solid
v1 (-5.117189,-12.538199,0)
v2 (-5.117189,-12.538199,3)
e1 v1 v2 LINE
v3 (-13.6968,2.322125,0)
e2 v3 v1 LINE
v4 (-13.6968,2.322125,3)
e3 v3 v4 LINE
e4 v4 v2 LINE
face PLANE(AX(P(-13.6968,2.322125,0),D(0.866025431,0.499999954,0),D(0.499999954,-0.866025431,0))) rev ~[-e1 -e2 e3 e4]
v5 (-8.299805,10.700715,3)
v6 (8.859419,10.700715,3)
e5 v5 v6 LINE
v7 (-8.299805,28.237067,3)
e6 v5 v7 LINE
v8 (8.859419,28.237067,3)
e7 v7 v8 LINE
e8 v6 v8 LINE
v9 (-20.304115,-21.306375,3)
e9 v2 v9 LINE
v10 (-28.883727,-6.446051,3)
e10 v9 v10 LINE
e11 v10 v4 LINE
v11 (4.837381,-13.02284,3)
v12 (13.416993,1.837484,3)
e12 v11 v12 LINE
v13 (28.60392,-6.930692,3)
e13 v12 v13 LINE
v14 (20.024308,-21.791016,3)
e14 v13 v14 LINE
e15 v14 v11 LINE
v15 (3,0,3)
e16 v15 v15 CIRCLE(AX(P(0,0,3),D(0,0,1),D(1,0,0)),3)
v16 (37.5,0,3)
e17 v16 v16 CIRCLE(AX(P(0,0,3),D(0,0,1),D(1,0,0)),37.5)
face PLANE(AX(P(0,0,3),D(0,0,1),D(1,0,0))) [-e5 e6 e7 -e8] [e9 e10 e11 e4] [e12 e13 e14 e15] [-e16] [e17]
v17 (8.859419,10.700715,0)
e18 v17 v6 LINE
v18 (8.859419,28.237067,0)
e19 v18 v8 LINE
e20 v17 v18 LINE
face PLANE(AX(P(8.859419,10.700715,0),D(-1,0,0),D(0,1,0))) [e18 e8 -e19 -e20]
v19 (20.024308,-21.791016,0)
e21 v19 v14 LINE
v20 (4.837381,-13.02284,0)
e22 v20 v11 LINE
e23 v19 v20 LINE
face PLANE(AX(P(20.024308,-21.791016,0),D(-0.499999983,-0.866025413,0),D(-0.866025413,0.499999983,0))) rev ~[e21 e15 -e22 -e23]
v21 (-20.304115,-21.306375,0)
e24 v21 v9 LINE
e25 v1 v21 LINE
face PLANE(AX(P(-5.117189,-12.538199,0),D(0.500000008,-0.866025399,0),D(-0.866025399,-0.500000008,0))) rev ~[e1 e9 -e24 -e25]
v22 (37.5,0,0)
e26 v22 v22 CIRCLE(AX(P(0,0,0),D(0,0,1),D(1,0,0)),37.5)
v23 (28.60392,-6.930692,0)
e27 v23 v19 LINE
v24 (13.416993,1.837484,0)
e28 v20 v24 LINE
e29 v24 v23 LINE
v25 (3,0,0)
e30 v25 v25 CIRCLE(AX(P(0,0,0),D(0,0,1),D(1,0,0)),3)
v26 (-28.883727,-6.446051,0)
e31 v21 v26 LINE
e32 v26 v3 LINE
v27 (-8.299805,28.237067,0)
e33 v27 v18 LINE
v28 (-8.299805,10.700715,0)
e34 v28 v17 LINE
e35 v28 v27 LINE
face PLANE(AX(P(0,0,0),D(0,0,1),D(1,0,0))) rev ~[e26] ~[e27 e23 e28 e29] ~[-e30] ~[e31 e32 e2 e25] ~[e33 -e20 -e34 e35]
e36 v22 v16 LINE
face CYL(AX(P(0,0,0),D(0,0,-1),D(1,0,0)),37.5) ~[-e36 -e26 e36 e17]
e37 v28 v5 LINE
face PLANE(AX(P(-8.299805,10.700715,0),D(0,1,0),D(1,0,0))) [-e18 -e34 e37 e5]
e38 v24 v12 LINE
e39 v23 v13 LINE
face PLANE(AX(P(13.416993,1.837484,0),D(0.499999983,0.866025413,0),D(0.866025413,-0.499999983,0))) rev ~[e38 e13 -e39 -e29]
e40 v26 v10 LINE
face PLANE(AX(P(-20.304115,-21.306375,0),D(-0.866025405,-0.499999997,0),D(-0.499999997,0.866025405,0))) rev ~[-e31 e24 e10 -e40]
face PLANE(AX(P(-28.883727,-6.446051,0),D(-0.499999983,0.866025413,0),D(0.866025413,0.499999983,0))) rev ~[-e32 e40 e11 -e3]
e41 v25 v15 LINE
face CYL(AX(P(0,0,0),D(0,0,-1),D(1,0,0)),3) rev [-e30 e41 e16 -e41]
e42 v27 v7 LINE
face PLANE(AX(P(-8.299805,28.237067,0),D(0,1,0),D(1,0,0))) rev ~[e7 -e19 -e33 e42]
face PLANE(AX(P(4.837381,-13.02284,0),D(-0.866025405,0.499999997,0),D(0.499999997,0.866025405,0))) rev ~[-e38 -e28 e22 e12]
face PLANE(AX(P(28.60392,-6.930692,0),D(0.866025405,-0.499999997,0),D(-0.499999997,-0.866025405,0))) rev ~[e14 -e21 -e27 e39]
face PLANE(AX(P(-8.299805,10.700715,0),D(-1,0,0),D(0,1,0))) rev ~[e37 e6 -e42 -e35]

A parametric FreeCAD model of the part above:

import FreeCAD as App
import Part
import Sketcher
Q = App.Units.Quantity

doc = App.newDocument("Part")
body = doc.addObject("PartDesign::Body", "Body")

# Sketch on XY plane
sketch1 = body.newObject("Sketcher::SketchObject", "Sketch")
sketch1.AttachmentSupport = (doc.getObject("XY_Plane"), [""])
sketch1.MapMode = "FlatFace"
sketch1.addGeometry([
    Part.Circle(App.Vector(0, 0, 0), App.Vector(0, 0, 1), 37.5),  # 0
    Part.LineSegment(App.Vector(-13.7, 2.3, 0), App.Vector(-5.1, -12.5, 0)),  # 1
    Part.LineSegment(App.Vector(-5.1, -12.5, 0), App.Vector(-20.3, -21.3, 0)),  # 2
    Part.LineSegment(App.Vector(-20.3, -21.3, 0), App.Vector(-28.9, -6.4, 0)),  # 3
    Part.LineSegment(App.Vector(-28.9, -6.4, 0), App.Vector(-13.7, 2.3, 0)),  # 4
    Part.LineSegment(App.Vector(4.8, -13, 0), App.Vector(13.4, 1.8, 0)),  # 5
    Part.LineSegment(App.Vector(13.4, 1.8, 0), App.Vector(28.6, -6.9, 0)),  # 6
    Part.LineSegment(App.Vector(28.6, -6.9, 0), App.Vector(20, -21.8, 0)),  # 7
    Part.LineSegment(App.Vector(20, -21.8, 0), App.Vector(4.8, -13, 0)),  # 8
    Part.Circle(App.Vector(0, 0, 0), App.Vector(0, 0, 1), 3),  # 9
    Part.LineSegment(App.Vector(8.9, 10.7, 0), App.Vector(-8.3, 10.7, 0)),  # 10
    Part.LineSegment(App.Vector(-8.3, 10.7, 0), App.Vector(-8.3, 28.2, 0)),  # 11
    Part.LineSegment(App.Vector(-8.3, 28.2, 0), App.Vector(8.9, 28.2, 0)),  # 12
    Part.LineSegment(App.Vector(8.9, 28.2, 0), App.Vector(8.9, 10.7, 0)),  # 13
], False)
sketch1.addConstraint([
    Sketcher.Constraint("Coincident", 1, 2, 2, 1),
    Sketcher.Constraint("Coincident", 2, 2, 3, 1),
    Sketcher.Constraint("Coincident", 3, 2, 4, 1),
    Sketcher.Constraint("Coincident", 4, 2, 1, 1),
    Sketcher.Constraint("Coincident", 5, 2, 6, 1),
    Sketcher.Constraint("Coincident", 6, 2, 7, 1),
    Sketcher.Constraint("Coincident", 7, 2, 8, 1),
    Sketcher.Constraint("Coincident", 8, 2, 5, 1),
    Sketcher.Constraint("Coincident", 10, 2, 11, 1),
    Sketcher.Constraint("Coincident", 11, 2, 12, 1),
    Sketcher.Constraint("Coincident", 12, 2, 13, 1),
    Sketcher.Constraint("Coincident", 13, 2, 10, 1),
    Sketcher.Constraint("Horizontal", 10),
    Sketcher.Constraint("Vertical", 11),
    Sketcher.Constraint("Horizontal", 12),
    Sketcher.Constraint("Vertical", 13),
    Sketcher.Constraint("Coincident", 0, 3, -1, 1),
    Sketcher.Constraint("Coincident", 9, 3, -1, 1),
    Sketcher.Constraint("Perpendicular", 1, 2),
    Sketcher.Constraint("Perpendicular", 2, 3),
    Sketcher.Constraint("Perpendicular", 3, 4),
    Sketcher.Constraint("Perpendicular", 5, 6),
    Sketcher.Constraint("Perpendicular", 6, 7),
    Sketcher.Constraint("Perpendicular", 7, 8),
    Sketcher.Constraint("Equal", 3, 5),
    Sketcher.Constraint("Equal", 4, 6),
    Sketcher.Constraint("Diameter", 0, 75.0),
    Sketcher.Constraint("Diameter", 9, 6.0),
    Sketcher.Constraint("Angle", 1, Q("-60.000003 deg")),
    Sketcher.Constraint("Angle", 5, Q("60 deg")),
    Sketcher.Constraint("DistanceY", 1, 2, -1, 1, 12.538199),
    Sketcher.Constraint("DistanceX", 4, 2, -1, 1, 13.6968),
    Sketcher.Constraint("DistanceY", 2, 2, 4, 2, 23.6285),
    Sketcher.Constraint("Distance", 2, 17.536352),
    Sketcher.Constraint("DistanceX", 10, 2, 10, 1, 17.159223),
    Sketcher.Constraint("DistanceY", 11, 1, 11, 2, 17.536352),
    Sketcher.Constraint("DistanceX", -1, 1, 6, 2, 28.60392),
    Sketcher.Constraint("DistanceY", 6, 2, -1, 1, 6.930692),
    Sketcher.Constraint("DistanceX", -1, 1, 12, 2, 8.859419),
    Sketcher.Constraint("DistanceY", 4, 2, 10, 2, 8.37859),
])
pad1 = body.newObject("PartDesign::Pad", "Pad")
pad1.Profile = sketch1
pad1.Length = 3

doc.recompute()
